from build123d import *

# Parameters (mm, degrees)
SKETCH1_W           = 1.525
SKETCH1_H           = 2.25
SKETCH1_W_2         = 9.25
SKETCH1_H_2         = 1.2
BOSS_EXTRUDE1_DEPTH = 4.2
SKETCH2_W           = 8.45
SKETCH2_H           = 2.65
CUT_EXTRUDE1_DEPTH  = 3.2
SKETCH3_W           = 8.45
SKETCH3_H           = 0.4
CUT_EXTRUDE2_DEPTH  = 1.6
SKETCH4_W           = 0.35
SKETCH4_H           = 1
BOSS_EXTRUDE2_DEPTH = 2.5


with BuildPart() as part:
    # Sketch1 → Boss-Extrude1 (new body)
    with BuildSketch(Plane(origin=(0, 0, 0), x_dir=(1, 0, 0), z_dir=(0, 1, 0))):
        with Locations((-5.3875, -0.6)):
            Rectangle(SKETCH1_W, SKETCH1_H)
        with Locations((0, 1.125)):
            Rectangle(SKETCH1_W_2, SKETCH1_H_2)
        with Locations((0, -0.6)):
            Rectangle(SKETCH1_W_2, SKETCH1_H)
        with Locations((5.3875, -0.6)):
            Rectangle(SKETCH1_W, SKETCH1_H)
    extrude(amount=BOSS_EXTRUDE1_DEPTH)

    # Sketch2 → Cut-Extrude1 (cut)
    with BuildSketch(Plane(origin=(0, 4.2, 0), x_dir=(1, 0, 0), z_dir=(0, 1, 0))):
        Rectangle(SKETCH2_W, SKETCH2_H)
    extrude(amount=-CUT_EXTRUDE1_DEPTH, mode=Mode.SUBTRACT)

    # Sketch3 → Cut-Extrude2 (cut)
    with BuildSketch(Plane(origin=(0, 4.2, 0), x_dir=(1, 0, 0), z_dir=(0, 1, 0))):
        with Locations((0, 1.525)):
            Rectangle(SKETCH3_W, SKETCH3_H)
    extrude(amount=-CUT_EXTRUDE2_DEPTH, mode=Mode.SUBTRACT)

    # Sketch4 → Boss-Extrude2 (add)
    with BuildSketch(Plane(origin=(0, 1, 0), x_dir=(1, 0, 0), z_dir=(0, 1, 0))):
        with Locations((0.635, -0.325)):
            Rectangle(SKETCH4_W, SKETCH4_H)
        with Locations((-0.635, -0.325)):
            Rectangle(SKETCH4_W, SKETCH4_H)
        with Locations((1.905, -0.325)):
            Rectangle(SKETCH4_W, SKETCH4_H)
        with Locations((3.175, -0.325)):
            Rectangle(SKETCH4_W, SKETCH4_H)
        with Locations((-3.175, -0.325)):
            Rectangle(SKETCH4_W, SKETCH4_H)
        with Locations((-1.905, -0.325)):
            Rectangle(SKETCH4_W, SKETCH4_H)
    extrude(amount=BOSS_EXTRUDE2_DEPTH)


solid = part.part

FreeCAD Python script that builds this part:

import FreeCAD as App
import Part
import Sketcher

doc = App.newDocument("Part")
body = doc.addObject("PartDesign::Body", "Body")

sketch1 = body.newObject("Sketcher::SketchObject", "Sketch")
sketch1.AttachmentSupport = (doc.getObject("XZ_Plane"), [""])
sketch1.MapMode = "FlatFace"
sketch1.addGeometry([
    Part.LineSegment(App.Vector(-6.15, -0.525, 0), App.Vector(-6.15, 1.725, 0)),
    Part.LineSegment(App.Vector(-6.15, 1.725, 0), App.Vector(6.15, 1.725, 0)),
    Part.LineSegment(App.Vector(6.15, 1.725, 0), App.Vector(6.15, -0.525, 0)),
    Part.LineSegment(App.Vector(6.15, -0.525, 0), App.Vector(4.625, -0.525, 0)),
    Part.LineSegment(App.Vector(4.625, -0.525, 0), App.Vector(4.625, -1.725, 0)),
    Part.LineSegment(App.Vector(4.625, -1.725, 0), App.Vector(-4.625, -1.725, 0)),
    Part.LineSegment(App.Vector(-4.625, -1.725, 0), App.Vector(-4.625, -0.525, 0)),
    Part.LineSegment(App.Vector(-4.625, -0.525, 0), App.Vector(-6.15, -0.525, 0)),
], False)
sketch1.addConstraint([
    Sketcher.Constraint("Coincident", 0, 2, 1, 1),
    Sketcher.Constraint("Coincident", 1, 2, 2, 1),
    Sketcher.Constraint("Coincident", 2, 2, 3, 1),
    Sketcher.Constraint("Coincident", 3, 2, 4, 1),
    Sketcher.Constraint("Coincident", 4, 2, 5, 1),
    Sketcher.Constraint("Coincident", 5, 2, 6, 1),
    Sketcher.Constraint("Coincident", 6, 2, 7, 1),
    Sketcher.Constraint("Coincident", 7, 2, 0, 1),
    Sketcher.Constraint("Vertical", 0),
    Sketcher.Constraint("Horizontal", 1),
    Sketcher.Constraint("Vertical", 2),
    Sketcher.Constraint("Horizontal", 3),
    Sketcher.Constraint("Vertical", 4),
    Sketcher.Constraint("Horizontal", 5),
    Sketcher.Constraint("Vertical", 6),
    Sketcher.Constraint("Horizontal", 7),
    Sketcher.Constraint("Symmetric", 3, 2, 6, 2, -2),
    Sketcher.Constraint("Equal", 3, 7),
    Sketcher.Constraint("DistanceX", 1, 1, 1, 2, 12.3),
    Sketcher.Constraint("DistanceY", 4, 2, 4, 1, 1.2),
    Sketcher.Constraint("DistanceX", 5, 2, 5, 1, 9.25),
    Sketcher.Constraint("DistanceY", 0, 1, 0, 2, 2.25),
    Sketcher.Constraint("DistanceY", -1, 1, 0, 2, 1.725),
])
pad1 = body.newObject("PartDesign::Pad", "Pad")
pad1.Profile = sketch1
pad1.Length = 4.2
pad1.Reversed = True

sketch2 = body.newObject("Sketcher::SketchObject", "Sketch001")
sketch2.AttachmentSupport = (doc.getObject("XZ_Plane"), [""])
sketch2.MapMode = "FlatFace"
sketch2.AttachmentOffset = App.Placement(App.Vector(0, 0, -4.2), App.Rotation())
sketch2.addGeometry([
    Part.LineSegment(App.Vector(-4.225, -1.325, 0), App.Vector(-4.225, 1.325, 0)),
    Part.LineSegment(App.Vector(-4.225, 1.325, 0), App.Vector(4.225, 1.325, 0)),
    Part.LineSegment(App.Vector(4.225, 1.325, 0), App.Vector(4.225, -1.325, 0)),
    Part.LineSegment(App.Vector(4.225, -1.325, 0), App.Vector(-4.225, -1.325, 0)),
], False)
sketch2.addConstraint([
    Sketcher.Constraint("Coincident", 0, 2, 1, 1),
    Sketcher.Constraint("Coincident", 1, 2, 2, 1),
    Sketcher.Constraint("Coincident", 2, 2, 3, 1),
    Sketcher.Constraint("Coincident", 3, 2, 0, 1),
    Sketcher.Constraint("Vertical", 0),
    Sketcher.Constraint("Horizontal", 1),
    Sketcher.Constraint("Vertical", 2),
    Sketcher.Constraint("Horizontal", 3),
    Sketcher.Constraint("Symmetric", 0, 2, 2, 2, -1, 1),
    Sketcher.Constraint("DistanceX", 1, 1, 1, 2, 8.45),
    Sketcher.Constraint("DistanceY", 0, 1, 0, 2, 2.65),
])
pocket1 = body.newObject("PartDesign::Pocket", "Pocket")
pocket1.Profile = sketch2
pocket1.Length = 3.2
pocket1.Reversed = True

sketch3 = body.newObject("Sketcher::SketchObject", "Sketch002")
sketch3.AttachmentSupport = (doc.getObject("XZ_Plane"), [""])
sketch3.MapMode = "FlatFace"
sketch3.AttachmentOffset = App.Placement(App.Vector(0, 0, -4.2), App.Rotation())
sketch3.addGeometry([
    Part.LineSegment(App.Vector(-4.225, -1.725, 0), App.Vector(-4.225, -1.325, 0)),
    Part.LineSegment(App.Vector(-4.225, -1.325, 0), App.Vector(4.225, -1.325, 0)),
    Part.LineSegment(App.Vector(4.225, -1.325, 0), App.Vector(4.225, -1.725, 0)),
    Part.LineSegment(App.Vector(4.225, -1.725, 0), App.Vector(-4.225, -1.725, 0)),
], False)
sketch3.addConstraint([
    Sketcher.Constraint("Coincident", 0, 2, 1, 1),
    Sketcher.Constraint("Coincident", 1, 2, 2, 1),
    Sketcher.Constraint("Coincident", 2, 2, 3, 1),
    Sketcher.Constraint("Coincident", 3, 2, 0, 1),
    Sketcher.Constraint("Vertical", 0),
    Sketcher.Constraint("Horizontal", 1),
    Sketcher.Constraint("Vertical", 2),
    Sketcher.Constraint("Horizontal", 3),
    Sketcher.Constraint("DistanceY", 0, 1, 0, 2, 0.4),
    Sketcher.Constraint("DistanceX", 1, 1, 1, 2, 8.45),
    Sketcher.Constraint("DistanceX", 0, 2, -1, 1, 4.225),
    Sketcher.Constraint("DistanceY", 0, 2, -1, 1, 1.325),
])
pocket2 = body.newObject("PartDesign::Pocket", "Pocket001")
pocket2.Profile = sketch3
pocket2.Length = 1.6
pocket2.Reversed = True

sketch4 = body.newObject("Sketcher::SketchObject", "Sketch003")
sketch4.AttachmentSupport = (doc.getObject("XZ_Plane"), [""])
sketch4.MapMode = "FlatFace"
sketch4.AttachmentOffset = App.Placement(App.Vector(0, 0, -1), App.Rotation())
sketch4.addGeometry([
    Part.LineSegment(App.Vector(0.46, -0.175, 0), App.Vector(0.46, 0.825, 0)),
    Part.LineSegment(App.Vector(0.46, 0.825, 0), App.Vector(0.81, 0.825, 0)),
    Part.LineSegment(App.Vector(0.81, 0.825, 0), App.Vector(0.81, -0.175, 0)),
    Part.LineSegment(App.Vector(0.81, -0.175, 0), App.Vector(0.46, -0.175, 0)),
    Part.LineSegment(App.Vector(-0.81, -0.175, 0), App.Vector(-0.81, 0.825, 0)),
    Part.LineSegment(App.Vector(-0.81, 0.825, 0), App.Vector(-0.46, 0.825, 0)),
    Part.LineSegment(App.Vector(-0.46, 0.825, 0), App.Vector(-0.46, -0.175, 0)),
    Part.LineSegment(App.Vector(-0.46, -0.175, 0), App.Vector(-0.81, -0.175, 0)),
    Part.LineSegment(App.Vector(1.73, -0.175, 0), App.Vector(1.73, 0.825, 0)),
    Part.LineSegment(App.Vector(1.73, 0.825, 0), App.Vector(2.08, 0.825, 0)),
    Part.LineSegment(App.Vector(2.08, 0.825, 0), App.Vector(2.08, -0.175, 0)),
    Part.LineSegment(App.Vector(2.08, -0.175, 0), App.Vector(1.73, -0.175, 0)),
    Part.LineSegment(App.Vector(3, -0.175, 0), App.Vector(3, 0.825, 0)),
    Part.LineSegment(App.Vector(3, 0.825, 0), App.Vector(3.35, 0.825, 0)),
    Part.LineSegment(App.Vector(3.35, 0.825, 0), App.Vector(3.35, -0.175, 0)),
    Part.LineSegment(App.Vector(3.35, -0.175, 0), App.Vector(3, -0.175, 0)),
    Part.LineSegment(App.Vector(-3.35, -0.175, 0), App.Vector(-3.35, 0.825, 0)),
    Part.LineSegment(App.Vector(-3.35, 0.825, 0), App.Vector(-3, 0.825, 0)),
    Part.LineSegment(App.Vector(-3, 0.825, 0), App.Vector(-3, -0.175, 0)),
    Part.LineSegment(App.Vector(-3, -0.175, 0), App.Vector(-3.35, -0.175, 0)),
    Part.LineSegment(App.Vector(-2.08, -0.175, 0), App.Vector(-2.08, 0.825, 0)),
    Part.LineSegment(App.Vector(-2.08, 0.825, 0), App.Vector(-1.73, 0.825, 0)),
    Part.LineSegment(App.Vector(-1.73, 0.825, 0), App.Vector(-1.73, -0.175, 0)),
    Part.LineSegment(App.Vector(-1.73, -0.175, 0), App.Vector(-2.08, -0.175, 0)),
], False)
sketch4.addConstraint([
    Sketcher.Constraint("Coincident", 0, 2, 1, 1),
    Sketcher.Constraint("Coincident", 1, 2, 2, 1),
    Sketcher.Constraint("Coincident", 2, 2, 3, 1),
    Sketcher.Constraint("Coincident", 3, 2, 0, 1),
    Sketcher.Constraint("Coincident", 4, 2, 5, 1),
    Sketcher.Constraint("Coincident", 5, 2, 6, 1),
    Sketcher.Constraint("Coincident", 6, 2, 7, 1),
    Sketcher.Constraint("Coincident", 7, 2, 4, 1),
    Sketcher.Constraint("Coincident", 8, 2, 9, 1),
    Sketcher.Constraint("Coincident", 9, 2, 10, 1),
    Sketcher.Constraint("Coincident", 10, 2, 11, 1),
    Sketcher.Constraint("Coincident", 11, 2, 8, 1),
    Sketcher.Constraint("Coincident", 12, 2, 13, 1),
    Sketcher.Constraint("Coincident", 13, 2, 14, 1),
    Sketcher.Constraint("Coincident", 14, 2, 15, 1),
    Sketcher.Constraint("Coincident", 15, 2, 12, 1),
    Sketcher.Constraint("Coincident", 16, 2, 17, 1),
    Sketcher.Constraint("Coincident", 17, 2, 18, 1),
    Sketcher.Constraint("Coincident", 18, 2, 19, 1),
    Sketcher.Constraint("Coincident", 19, 2, 16, 1),
    Sketcher.Constraint("Coincident", 20, 2, 21, 1),
    Sketcher.Constraint("Coincident", 21, 2, 22, 1),
    Sketcher.Constraint("Coincident", 22, 2, 23, 1),
    Sketcher.Constraint("Coincident", 23, 2, 20, 1),
    Sketcher.Constraint("Vertical", 0),
    Sketcher.Constraint("Horizontal", 1),
    Sketcher.Constraint("Vertical", 2),
    Sketcher.Constraint("Horizontal", 3),
    Sketcher.Constraint("Vertical", 4),
    Sketcher.Constraint("Horizontal", 5),
    Sketcher.Constraint("Vertical", 6),
    Sketcher.Constraint("Horizontal", 7),
    Sketcher.Constraint("Vertical", 8),
    Sketcher.Constraint("Horizontal", 9),
    Sketcher.Constraint("Vertical", 10),
    Sketcher.Constraint("Horizontal", 11),
    Sketcher.Constraint("Vertical", 12),
    Sketcher.Constraint("Horizontal", 13),
    Sketcher.Constraint("Vertical", 14),
    Sketcher.Constraint("Horizontal", 15),
    Sketcher.Constraint("Vertical", 16),
    Sketcher.Constraint("Horizontal", 17),
    Sketcher.Constraint("Vertical", 18),
    Sketcher.Constraint("Horizontal", 19),
    Sketcher.Constraint("Vertical", 20),
    Sketcher.Constraint("Horizontal", 21),
    Sketcher.Constraint("Vertical", 22),
    Sketcher.Constraint("Horizontal", 23),
    Sketcher.Constraint("Symmetric", 1, 2, 4, 2, -2),
    Sketcher.Constraint("Symmetric", 3, 2, 6, 2, -2),
    Sketcher.Constraint("Symmetric", 13, 2, 16, 2, -2),
    Sketcher.Constraint("Symmetric", 15, 2, 18, 2, -2),
    Sketcher.Constraint("Symmetric", 9, 2, 20, 2, -2),
    Sketcher.Constraint("Symmetric", 11, 2, 22, 2, -2),
    Sketcher.Constraint("Horizontal", 5, 2, 8, 2),
    Sketcher.Constraint("Horizontal", 7, 2, 10, 2),
    Sketcher.Constraint("Horizontal", 9, 2, 12, 2),
    Sketcher.Constraint("Horizontal", 11, 2, 14, 2),
    Sketcher.Constraint("Equal", 7, 9),
    Sketcher.Constraint("Equal", 11, 13),
    Sketcher.Constraint("DistanceY", 0, 1, 0, 2, 1.0),
    Sketcher.Constraint("DistanceX", -1, 1, 12, 2, 3.0),
    Sketcher.Constraint("DistanceX", 1, 1, 1, 2, 0.35),
    Sketcher.Constraint("DistanceX", -1, 1, 0, 2, 0.46),
    Sketcher.Constraint("DistanceX", -1, 1, 8, 2, 1.73),
    Sketcher.Constraint("DistanceY", -1, 1, 0, 2, 0.825),
])
pad2 = body.newObject("PartDesign::Pad", "Pad001")
pad2.Profile = sketch4
pad2.Length = 2.5
pad2.Reversed = True

doc.recompute()
